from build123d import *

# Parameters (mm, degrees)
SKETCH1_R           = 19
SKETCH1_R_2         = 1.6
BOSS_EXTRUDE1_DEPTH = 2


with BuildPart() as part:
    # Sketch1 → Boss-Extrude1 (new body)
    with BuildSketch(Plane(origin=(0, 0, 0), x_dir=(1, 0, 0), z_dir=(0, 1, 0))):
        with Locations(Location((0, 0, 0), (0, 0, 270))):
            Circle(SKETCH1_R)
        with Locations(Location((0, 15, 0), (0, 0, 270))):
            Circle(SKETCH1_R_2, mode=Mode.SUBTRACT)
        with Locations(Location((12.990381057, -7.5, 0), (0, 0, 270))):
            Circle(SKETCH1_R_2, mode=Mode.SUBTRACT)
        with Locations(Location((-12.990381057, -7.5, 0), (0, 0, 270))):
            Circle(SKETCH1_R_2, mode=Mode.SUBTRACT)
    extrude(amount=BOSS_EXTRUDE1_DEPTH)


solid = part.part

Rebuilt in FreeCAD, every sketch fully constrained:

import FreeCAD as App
import Part
import Sketcher

doc = App.newDocument("Part")
body = doc.addObject("PartDesign::Body", "Body")

sketch1 = body.newObject("Sketcher::SketchObject", "Sketch")
sketch1.AttachmentSupport = (doc.getObject("XZ_Plane"), [""])
sketch1.MapMode = "FlatFace"
sketch1.addGeometry([
    Part.Circle(App.Vector(0, 0, 0), App.Vector(0, 0, 1), 19),
    Part.Circle(App.Vector(0, -15, 0), App.Vector(0, 0, 1), 1.6),
    Part.Circle(App.Vector(-13, 7.5, 0), App.Vector(0, 0, 1), 1.6),
    Part.Circle(App.Vector(13, 7.5, 0), App.Vector(0, 0, 1), 1.6),
], False)
sketch1.addConstraint([
    Sketcher.Constraint("Coincident", 0, 3, -1, 1),
    Sketcher.Constraint("Equal", 1, 2),
    Sketcher.Constraint("Equal", 2, 3),
    Sketcher.Constraint("Symmetric", 2, 3, 3, 3, -2),
    Sketcher.Constraint("PointOnObject", 1, 3, -2),
    Sketcher.Constraint("Diameter", 0, 38.0),
    Sketcher.Constraint("Diameter", 1, 3.2),
    Sketcher.Constraint("DistanceY", 1, 3, -1, 1, 15.0),
    Sketcher.Constraint("DistanceY", -1, 1, 2, 3, 7.5),
    Sketcher.Constraint("DistanceX", 2, 3, -1, 1, 12.990381),
])
pad1 = body.newObject("PartDesign::Pad", "Pad")
pad1.Profile = sketch1
pad1.Length = 2
pad1.Reversed = True

doc.recompute()
